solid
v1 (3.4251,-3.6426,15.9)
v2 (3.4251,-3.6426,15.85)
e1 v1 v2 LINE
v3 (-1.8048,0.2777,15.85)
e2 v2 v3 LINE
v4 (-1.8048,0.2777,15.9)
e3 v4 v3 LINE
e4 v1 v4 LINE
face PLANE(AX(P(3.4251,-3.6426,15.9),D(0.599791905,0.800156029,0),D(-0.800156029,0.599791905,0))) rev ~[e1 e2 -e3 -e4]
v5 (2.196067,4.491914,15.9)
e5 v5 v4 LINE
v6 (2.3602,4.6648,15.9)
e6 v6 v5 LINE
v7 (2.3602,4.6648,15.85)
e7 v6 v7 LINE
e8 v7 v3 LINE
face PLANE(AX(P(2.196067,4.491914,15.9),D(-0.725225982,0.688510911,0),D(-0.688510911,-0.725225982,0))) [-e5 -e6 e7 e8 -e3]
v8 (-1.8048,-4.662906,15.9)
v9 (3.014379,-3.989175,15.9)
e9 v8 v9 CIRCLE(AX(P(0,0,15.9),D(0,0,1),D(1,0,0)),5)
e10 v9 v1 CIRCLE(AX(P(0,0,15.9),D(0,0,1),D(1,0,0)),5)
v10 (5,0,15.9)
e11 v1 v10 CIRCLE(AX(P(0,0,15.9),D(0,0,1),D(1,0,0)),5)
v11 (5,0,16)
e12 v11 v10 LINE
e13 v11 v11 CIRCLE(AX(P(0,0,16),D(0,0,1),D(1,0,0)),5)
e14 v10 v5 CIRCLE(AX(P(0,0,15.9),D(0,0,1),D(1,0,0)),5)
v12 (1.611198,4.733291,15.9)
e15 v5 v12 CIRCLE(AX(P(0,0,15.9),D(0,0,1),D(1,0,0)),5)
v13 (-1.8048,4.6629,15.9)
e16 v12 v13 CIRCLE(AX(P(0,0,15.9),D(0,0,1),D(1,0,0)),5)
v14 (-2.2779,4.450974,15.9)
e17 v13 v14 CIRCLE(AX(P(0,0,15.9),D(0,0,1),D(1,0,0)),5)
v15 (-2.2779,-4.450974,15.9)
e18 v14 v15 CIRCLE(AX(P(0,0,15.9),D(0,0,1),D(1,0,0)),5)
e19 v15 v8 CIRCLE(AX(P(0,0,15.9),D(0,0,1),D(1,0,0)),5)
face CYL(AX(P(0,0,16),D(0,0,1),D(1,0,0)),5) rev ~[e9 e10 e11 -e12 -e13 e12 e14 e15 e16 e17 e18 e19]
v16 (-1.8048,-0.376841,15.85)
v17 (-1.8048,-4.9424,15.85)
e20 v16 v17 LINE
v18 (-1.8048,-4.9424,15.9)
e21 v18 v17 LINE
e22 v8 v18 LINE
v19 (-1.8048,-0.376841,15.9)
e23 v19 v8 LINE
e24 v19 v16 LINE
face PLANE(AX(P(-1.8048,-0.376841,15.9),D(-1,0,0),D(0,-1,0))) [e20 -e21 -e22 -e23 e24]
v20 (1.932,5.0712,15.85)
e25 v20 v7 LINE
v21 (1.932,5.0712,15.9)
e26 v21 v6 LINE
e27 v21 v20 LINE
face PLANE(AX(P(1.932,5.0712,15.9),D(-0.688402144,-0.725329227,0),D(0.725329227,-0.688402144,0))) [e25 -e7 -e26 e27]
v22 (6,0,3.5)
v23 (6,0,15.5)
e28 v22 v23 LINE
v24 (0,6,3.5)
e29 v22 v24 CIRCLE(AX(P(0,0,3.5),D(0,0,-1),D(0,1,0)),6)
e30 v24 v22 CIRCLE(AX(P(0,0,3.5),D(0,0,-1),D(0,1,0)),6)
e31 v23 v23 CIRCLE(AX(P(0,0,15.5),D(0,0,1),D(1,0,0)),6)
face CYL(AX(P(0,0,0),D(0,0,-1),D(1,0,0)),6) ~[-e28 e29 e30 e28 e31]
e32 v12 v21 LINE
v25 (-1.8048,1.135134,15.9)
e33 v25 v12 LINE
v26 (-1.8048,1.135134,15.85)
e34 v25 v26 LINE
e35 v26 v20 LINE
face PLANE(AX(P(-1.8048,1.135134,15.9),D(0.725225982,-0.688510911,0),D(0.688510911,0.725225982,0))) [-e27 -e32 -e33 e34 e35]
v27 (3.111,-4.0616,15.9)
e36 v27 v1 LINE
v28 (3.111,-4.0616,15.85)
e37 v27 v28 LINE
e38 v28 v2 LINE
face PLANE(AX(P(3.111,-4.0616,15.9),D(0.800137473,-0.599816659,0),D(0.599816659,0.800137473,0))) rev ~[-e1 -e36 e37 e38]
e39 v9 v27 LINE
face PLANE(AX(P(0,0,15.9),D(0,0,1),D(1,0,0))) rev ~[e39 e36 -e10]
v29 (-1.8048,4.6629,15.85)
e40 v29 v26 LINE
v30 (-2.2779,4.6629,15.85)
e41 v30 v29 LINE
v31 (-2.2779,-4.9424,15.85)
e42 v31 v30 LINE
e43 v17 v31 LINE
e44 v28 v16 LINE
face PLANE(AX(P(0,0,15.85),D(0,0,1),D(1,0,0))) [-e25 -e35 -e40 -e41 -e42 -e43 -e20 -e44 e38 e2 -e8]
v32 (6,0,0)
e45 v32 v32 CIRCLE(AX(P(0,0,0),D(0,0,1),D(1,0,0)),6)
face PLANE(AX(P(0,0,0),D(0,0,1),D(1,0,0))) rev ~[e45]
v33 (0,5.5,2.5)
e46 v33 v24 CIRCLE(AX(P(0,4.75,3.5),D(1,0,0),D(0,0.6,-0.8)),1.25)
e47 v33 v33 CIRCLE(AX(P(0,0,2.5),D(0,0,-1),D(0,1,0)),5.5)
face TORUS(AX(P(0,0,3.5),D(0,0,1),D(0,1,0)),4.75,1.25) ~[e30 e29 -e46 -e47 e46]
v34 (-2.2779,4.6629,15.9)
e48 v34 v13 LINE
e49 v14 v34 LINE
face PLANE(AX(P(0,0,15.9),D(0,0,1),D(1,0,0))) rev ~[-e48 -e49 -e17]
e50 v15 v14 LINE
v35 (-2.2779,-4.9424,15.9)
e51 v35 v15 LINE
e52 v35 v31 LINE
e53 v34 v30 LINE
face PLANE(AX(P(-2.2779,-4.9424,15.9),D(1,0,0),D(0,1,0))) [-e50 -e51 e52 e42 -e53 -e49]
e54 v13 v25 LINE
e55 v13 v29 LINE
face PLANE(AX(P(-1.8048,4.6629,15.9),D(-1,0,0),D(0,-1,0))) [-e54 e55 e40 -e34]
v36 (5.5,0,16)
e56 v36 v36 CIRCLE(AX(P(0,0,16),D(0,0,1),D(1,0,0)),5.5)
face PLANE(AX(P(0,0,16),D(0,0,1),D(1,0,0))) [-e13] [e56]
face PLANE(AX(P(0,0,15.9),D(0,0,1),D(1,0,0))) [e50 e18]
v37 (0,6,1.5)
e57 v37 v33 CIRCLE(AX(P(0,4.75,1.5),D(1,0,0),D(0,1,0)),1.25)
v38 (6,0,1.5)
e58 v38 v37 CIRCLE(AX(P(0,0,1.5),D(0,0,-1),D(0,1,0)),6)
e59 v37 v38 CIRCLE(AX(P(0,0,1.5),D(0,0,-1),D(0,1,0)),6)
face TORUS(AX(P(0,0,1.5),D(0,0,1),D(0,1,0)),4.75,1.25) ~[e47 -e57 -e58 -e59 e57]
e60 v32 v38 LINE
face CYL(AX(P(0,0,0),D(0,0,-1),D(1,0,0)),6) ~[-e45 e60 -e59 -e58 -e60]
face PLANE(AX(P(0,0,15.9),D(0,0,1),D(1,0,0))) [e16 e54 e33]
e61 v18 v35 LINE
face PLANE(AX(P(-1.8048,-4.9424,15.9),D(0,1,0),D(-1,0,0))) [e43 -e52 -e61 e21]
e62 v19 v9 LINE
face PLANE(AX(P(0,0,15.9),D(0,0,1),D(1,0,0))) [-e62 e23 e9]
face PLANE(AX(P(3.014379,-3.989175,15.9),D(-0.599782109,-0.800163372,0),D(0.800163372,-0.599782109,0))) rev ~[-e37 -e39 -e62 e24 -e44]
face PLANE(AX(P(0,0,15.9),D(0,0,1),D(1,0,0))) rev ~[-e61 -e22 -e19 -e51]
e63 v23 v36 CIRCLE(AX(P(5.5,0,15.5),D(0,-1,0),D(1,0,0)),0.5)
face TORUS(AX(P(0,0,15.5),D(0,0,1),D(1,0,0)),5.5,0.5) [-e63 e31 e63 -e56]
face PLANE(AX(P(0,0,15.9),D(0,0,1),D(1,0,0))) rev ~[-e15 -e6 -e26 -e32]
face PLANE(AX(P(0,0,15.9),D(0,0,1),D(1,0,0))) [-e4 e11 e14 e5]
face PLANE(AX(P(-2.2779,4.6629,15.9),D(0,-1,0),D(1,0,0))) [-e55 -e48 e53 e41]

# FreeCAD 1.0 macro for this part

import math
import FreeCAD as App
import Part
import Sketcher

V = App.Vector
Q = App.Units.Quantity


def edges_at(feature, points):
    """Names of the edges that pass closest to the given points."""
    edges = feature.Shape.Edges
    near = lambda p: min(range(len(edges)), key=lambda i: edges[i].distToShape(Part.Vertex(*p))[0])
    return sorted({f"Edge{near(p) + 1}" for p in points})

doc = App.newDocument("Part")
body = doc.addObject("PartDesign::Body", "Body")

# Sketch on XY plane
sketch1 = body.newObject("Sketcher::SketchObject", "Sketch")
sketch1.AttachmentSupport = (doc.getObject("XY_Plane"), [""])
sketch1.MapMode = "FlatFace"
sketch1.addGeometry(Part.Circle(V(0, 0, 0), V(0, 0, 1), 6), False)
sketch1.addConstraint(Sketcher.Constraint("Coincident", 0, 3, -1, 1))
sketch1.addConstraint(Sketcher.Constraint("Diameter", 0, Q("12 mm")))
pad1 = body.newObject("PartDesign::Pad", "Pad")
pad1.Profile = sketch1
pad1.Length = 16

# Sketch on YZ plane
sketch2 = body.newObject("Sketcher::SketchObject", "Sketch001")
sketch2.AttachmentSupport = (doc.getObject("YZ_Plane"), [""])
sketch2.MapMode = "FlatFace"
sketch2.addGeometry(Part.ArcOfCircle(Part.Circle(V(4.8, 1.5, 0), V(0, 0, 1), 1.2), math.radians(0), math.radians(53)), False)
sketch2.addGeometry(Part.LineSegment(V(6, 1.5, 0), V(6, 3.5, 0)), False)
sketch2.addGeometry(Part.ArcOfCircle(Part.Circle(V(4.8, 3.5, 0), V(0, 0, 1), 1.2), math.radians(-53), math.radians(0)), False)
sketch2.addConstraint(Sketcher.Constraint("Tangent", 0, 1, 1, 1))
sketch2.addConstraint(Sketcher.Constraint("Tangent", 1, 2, 2, 2))
sketch2.addConstraint(Sketcher.Constraint("Coincident", 2, 1, 0, 2))
sketch2.addConstraint(Sketcher.Constraint("Vertical", 1))
sketch2.addConstraint(Sketcher.Constraint("Equal", 0, 2))
sketch2.addConstraint(Sketcher.Constraint("DistanceY", 1, 1, 1, 2, Q("2 mm")))
sketch2.addConstraint(Sketcher.Constraint("Radius", 0, Q("1.25 mm")))
sketch2.addConstraint(Sketcher.Constraint("DistanceY", -1, 1, 2, 1, Q("2.5 mm")))
sketch2.addConstraint(Sketcher.Constraint("DistanceX", -1, 1, 0, 1, Q("6 mm")))
groove = body.newObject("PartDesign::Groove", "Groove")
groove.Profile = sketch2
groove.ReferenceAxis = (sketch2, ["V_Axis"])
groove.Angle = 360

# Sketch on XY plane
sketch3 = body.newObject("Sketcher::SketchObject", "Sketch002")
sketch3.AttachmentSupport = (doc.getObject("XY_Plane"), [""])
sketch3.MapMode = "FlatFace"
sketch3.AttachmentOffset = App.Placement(V(0, 0, 16), App.Rotation())
sketch3.addGeometry(Part.Circle(V(0, 0, 0), V(0, 0, 1), 5), False)
sketch3.addConstraint(Sketcher.Constraint("Coincident", 0, 3, -1, 1))
sketch3.addConstraint(Sketcher.Constraint("Diameter", 0, Q("10 mm")))
pocket1 = body.newObject("PartDesign::Pocket", "Pocket")
pocket1.Profile = sketch3
pocket1.Length = 0.1

# Sketch on XY plane
sketch4 = body.newObject("Sketcher::SketchObject", "Sketch003")
sketch4.AttachmentSupport = (doc.getObject("XY_Plane"), [""])
sketch4.MapMode = "FlatFace"
sketch4.AttachmentOffset = App.Placement(V(0, 0, 15.9), App.Rotation())
sketch4.addGeometry(Part.LineSegment(V(-1.8, 4.66, 0), V(-2.28, 4.66, 0)), False)
sketch4.addGeometry(Part.LineSegment(V(-2.28, 4.66, 0), V(-2.28, -4.94, 0)), False)
sketch4.addGeometry(Part.LineSegment(V(-2.28, -4.94, 0), V(-1.8, -4.94, 0)), False)
sketch4.addGeometry(Part.LineSegment(V(-1.8, -4.94, 0), V(-1.8, -0.38, 0)), False)
sketch4.addGeometry(Part.LineSegment(V(-1.8, -0.38, 0), V(3.11, -4.06, 0)), False)
sketch4.addGeometry(Part.LineSegment(V(3.11, -4.06, 0), V(3.43, -3.64, 0)), False)
sketch4.addGeometry(Part.LineSegment(V(3.43, -3.64, 0), V(-1.8, 0.28, 0)), False)
sketch4.addGeometry(Part.LineSegment(V(-1.8, 0.28, 0), V(2.36, 4.66, 0)), False)
sketch4.addGeometry(Part.LineSegment(V(2.36, 4.66, 0), V(1.93, 5.07, 0)), False)
sketch4.addGeometry(Part.LineSegment(V(1.93, 5.07, 0), V(-1.8, 1.14, 0)), False)
sketch4.addGeometry(Part.LineSegment(V(-1.8, 1.14, 0), V(-1.8, 4.66, 0)), False)
sketch4.addConstraint(Sketcher.Constraint("Coincident", 0, 2, 1, 1))
sketch4.addConstraint(Sketcher.Constraint("Coincident", 1, 2, 2, 1))
sketch4.addConstraint(Sketcher.Constraint("Coincident", 2, 2, 3, 1))
sketch4.addConstraint(Sketcher.Constraint("Coincident", 3, 2, 4, 1))
sketch4.addConstraint(Sketcher.Constraint("Coincident", 4, 2, 5, 1))
sketch4.addConstraint(Sketcher.Constraint("Coincident", 5, 2, 6, 1))
sketch4.addConstraint(Sketcher.Constraint("Coincident", 6, 2, 7, 1))
sketch4.addConstraint(Sketcher.Constraint("Coincident", 7, 2, 8, 1))
sketch4.addConstraint(Sketcher.Constraint("Coincident", 8, 2, 9, 1))
sketch4.addConstraint(Sketcher.Constraint("Coincident", 9, 2, 10, 1))
sketch4.addConstraint(Sketcher.Constraint("Coincident", 10, 2, 0, 1))
sketch4.addConstraint(Sketcher.Constraint("Horizontal", 0))
sketch4.addConstraint(Sketcher.Constraint("Vertical", 1))
sketch4.addConstraint(Sketcher.Constraint("Horizontal", 2))
sketch4.addConstraint(Sketcher.Constraint("Vertical", 3))
sketch4.addConstraint(Sketcher.Constraint("Vertical", 10))
sketch4.addConstraint(Sketcher.Constraint("Perpendicular", 4, 5))
sketch4.addConstraint(Sketcher.Constraint("Perpendicular", 5, 6))
sketch4.addConstraint(Sketcher.Constraint("Perpendicular", 7, 8))
sketch4.addConstraint(Sketcher.Constraint("Perpendicular", 8, 9))
sketch4.addConstraint(Sketcher.Constraint("Vertical", 3, 2, 6, 2))
sketch4.addConstraint(Sketcher.Constraint("Vertical", 6, 2, 9, 2))
sketch4.addConstraint(Sketcher.Constraint("DistanceX", 0, 2, 0, 1, Q("0.473 mm")))
sketch4.addConstraint(Sketcher.Constraint("DistanceX", 2, 2, 5, 2, Q("5.23 mm")))
sketch4.addConstraint(Sketcher.Constraint("DistanceY", 2, 2, 6, 2, Q("5.22 mm")))
sketch4.addConstraint(Sketcher.Constraint("DistanceX", 0, 2, 8, 2, Q("4.21 mm")))
sketch4.addConstraint(Sketcher.Constraint("Distance", 6, Q("6.536 mm")))
sketch4.addConstraint(Sketcher.Constraint("DistanceY", 1, 2, 1, 1, Q("9.6053 mm")))
sketch4.addConstraint(Sketcher.Constraint("DistanceY", 3, 1, 3, 2, Q("4.5656 mm")))
sketch4.addConstraint(Sketcher.Constraint("DistanceY", 10, 1, 10, 2, Q("3.5278 mm")))
sketch4.addConstraint(Sketcher.Constraint("DistanceX", 0, 2, -1, 1, Q("2.278 mm")))
sketch4.addConstraint(Sketcher.Constraint("DistanceY", -1, 1, 0, 2, Q("4.663 mm")))
sketch4.addConstraint(Sketcher.Constraint("DistanceY", 0, 2, 7, 2, Q("0.002 mm")))
pocket2 = body.newObject("PartDesign::Pocket", "Pocket001")
pocket2.Profile = sketch4
pocket2.Length = 0.05
doc.recompute()

fillet = body.newObject("PartDesign::Fillet", "Fillet")
fillet.Base = (pocket2, edges_at(pocket2, [(-6, 0, 16)]))
fillet.Radius = 0.5

doc.recompute()
